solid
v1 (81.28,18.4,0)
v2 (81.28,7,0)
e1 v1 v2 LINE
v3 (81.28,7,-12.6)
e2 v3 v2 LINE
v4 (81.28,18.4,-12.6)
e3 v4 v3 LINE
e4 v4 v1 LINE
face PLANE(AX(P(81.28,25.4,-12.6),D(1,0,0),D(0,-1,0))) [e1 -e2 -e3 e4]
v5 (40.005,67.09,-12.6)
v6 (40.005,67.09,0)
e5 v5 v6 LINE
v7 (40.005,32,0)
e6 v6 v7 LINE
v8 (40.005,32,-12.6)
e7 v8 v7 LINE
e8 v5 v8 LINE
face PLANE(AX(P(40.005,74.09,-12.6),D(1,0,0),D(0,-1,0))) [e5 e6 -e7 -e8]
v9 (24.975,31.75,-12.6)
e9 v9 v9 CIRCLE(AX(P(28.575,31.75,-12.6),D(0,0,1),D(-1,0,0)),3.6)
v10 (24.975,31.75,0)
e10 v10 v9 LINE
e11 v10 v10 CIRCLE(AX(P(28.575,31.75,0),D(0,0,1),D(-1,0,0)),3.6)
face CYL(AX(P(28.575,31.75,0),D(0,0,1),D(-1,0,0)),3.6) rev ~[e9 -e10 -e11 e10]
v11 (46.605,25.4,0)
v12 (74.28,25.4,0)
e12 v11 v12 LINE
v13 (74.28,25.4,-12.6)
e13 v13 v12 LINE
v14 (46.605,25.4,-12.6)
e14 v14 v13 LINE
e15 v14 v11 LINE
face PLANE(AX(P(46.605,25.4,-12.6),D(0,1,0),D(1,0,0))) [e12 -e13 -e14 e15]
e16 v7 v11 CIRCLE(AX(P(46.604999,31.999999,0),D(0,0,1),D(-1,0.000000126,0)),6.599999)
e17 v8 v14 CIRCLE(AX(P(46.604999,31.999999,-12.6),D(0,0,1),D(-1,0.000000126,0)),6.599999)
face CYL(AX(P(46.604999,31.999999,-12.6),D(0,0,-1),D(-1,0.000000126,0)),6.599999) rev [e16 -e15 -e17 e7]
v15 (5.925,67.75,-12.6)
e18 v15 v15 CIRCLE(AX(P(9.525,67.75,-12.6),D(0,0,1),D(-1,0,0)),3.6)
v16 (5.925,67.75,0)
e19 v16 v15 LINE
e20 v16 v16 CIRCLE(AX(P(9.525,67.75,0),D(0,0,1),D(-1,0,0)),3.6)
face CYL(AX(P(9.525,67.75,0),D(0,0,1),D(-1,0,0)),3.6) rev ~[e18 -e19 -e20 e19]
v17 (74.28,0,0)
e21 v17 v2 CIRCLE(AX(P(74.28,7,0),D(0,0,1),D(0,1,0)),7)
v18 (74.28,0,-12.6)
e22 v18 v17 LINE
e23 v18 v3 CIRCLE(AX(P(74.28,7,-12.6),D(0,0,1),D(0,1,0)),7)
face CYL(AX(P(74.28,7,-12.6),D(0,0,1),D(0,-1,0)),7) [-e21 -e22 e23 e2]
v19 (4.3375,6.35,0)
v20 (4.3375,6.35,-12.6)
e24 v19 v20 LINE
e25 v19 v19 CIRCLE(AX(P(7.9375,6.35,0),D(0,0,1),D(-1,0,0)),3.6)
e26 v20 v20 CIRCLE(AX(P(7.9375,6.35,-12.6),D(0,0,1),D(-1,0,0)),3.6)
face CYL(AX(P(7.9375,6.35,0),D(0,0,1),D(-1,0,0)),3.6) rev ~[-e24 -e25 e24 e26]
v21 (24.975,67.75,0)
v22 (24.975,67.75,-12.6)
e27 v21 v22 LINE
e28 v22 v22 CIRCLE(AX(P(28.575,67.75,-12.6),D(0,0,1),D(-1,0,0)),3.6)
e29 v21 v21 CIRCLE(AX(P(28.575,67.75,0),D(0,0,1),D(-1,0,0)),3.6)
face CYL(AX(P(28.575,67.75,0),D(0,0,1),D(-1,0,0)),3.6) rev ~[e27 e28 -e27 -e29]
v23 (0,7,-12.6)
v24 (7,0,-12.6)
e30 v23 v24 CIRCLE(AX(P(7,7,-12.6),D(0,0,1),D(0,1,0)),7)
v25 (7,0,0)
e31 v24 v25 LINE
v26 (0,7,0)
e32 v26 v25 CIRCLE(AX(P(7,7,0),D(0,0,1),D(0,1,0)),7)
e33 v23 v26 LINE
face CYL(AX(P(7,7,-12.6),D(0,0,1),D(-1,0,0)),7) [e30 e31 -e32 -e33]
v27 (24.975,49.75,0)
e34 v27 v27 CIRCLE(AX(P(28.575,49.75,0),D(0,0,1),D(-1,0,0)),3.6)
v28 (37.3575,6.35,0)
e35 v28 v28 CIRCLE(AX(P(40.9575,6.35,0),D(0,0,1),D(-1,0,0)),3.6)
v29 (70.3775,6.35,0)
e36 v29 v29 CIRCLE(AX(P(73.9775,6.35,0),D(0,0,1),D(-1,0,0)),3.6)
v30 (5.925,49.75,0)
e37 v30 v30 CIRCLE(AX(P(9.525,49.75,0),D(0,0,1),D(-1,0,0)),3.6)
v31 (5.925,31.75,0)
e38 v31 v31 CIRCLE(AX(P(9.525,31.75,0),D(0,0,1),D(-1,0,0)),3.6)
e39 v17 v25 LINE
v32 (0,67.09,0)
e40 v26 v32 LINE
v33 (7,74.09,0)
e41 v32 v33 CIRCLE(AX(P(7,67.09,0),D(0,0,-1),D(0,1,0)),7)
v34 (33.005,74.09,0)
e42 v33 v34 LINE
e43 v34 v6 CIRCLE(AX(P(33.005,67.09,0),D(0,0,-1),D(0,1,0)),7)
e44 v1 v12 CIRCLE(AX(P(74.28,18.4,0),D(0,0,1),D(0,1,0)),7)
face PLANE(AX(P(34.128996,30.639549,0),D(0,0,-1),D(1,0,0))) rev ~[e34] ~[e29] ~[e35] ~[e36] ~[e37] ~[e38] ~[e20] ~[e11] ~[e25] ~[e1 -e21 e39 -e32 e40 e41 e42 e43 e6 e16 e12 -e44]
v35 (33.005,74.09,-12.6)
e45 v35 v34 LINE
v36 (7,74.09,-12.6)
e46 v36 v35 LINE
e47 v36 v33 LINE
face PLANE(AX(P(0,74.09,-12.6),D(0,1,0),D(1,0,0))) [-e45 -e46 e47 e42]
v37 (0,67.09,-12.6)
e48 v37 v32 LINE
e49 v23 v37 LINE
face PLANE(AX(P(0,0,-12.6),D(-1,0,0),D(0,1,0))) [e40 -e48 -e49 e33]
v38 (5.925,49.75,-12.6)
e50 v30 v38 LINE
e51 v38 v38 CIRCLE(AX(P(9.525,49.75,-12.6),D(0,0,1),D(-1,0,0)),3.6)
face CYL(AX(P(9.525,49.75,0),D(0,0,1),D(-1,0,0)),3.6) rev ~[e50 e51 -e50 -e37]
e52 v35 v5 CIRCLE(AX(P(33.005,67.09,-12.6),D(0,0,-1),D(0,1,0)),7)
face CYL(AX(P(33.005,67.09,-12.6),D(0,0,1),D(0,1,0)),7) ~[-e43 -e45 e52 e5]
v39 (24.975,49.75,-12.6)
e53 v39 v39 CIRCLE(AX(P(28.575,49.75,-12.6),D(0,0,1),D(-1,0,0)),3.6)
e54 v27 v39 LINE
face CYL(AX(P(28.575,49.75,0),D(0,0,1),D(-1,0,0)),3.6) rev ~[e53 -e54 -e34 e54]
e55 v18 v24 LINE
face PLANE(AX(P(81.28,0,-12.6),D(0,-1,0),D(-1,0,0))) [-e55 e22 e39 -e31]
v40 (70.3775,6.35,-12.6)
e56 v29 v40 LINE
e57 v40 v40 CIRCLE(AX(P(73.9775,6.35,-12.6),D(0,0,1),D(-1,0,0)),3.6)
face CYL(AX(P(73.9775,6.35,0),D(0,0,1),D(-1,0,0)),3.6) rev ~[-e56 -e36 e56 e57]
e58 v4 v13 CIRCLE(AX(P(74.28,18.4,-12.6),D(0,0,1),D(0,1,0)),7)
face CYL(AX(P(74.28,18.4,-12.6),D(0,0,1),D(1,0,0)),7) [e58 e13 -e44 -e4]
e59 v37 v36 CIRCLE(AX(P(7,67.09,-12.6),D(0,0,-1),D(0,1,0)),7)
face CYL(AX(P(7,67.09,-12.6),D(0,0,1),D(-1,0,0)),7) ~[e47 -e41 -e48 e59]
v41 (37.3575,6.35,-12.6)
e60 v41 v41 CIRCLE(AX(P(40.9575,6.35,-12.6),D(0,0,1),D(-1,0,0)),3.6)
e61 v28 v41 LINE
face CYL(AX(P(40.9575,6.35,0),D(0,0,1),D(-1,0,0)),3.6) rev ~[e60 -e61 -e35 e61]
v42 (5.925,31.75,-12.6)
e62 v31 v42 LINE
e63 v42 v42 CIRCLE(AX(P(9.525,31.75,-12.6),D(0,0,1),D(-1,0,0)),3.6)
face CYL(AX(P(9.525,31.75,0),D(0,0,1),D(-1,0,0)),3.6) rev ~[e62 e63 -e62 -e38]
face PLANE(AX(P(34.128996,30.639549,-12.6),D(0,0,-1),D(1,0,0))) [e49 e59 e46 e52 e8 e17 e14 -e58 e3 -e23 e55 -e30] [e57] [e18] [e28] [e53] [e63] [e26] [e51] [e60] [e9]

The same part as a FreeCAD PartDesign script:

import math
import FreeCAD as App
import Part
import Sketcher

V = App.Vector
Q = App.Units.Quantity


def edges_at(feature, points):
    """Names of the edges that pass closest to the given points."""
    edges = feature.Shape.Edges
    near = lambda p: min(range(len(edges)), key=lambda i: edges[i].distToShape(Part.Vertex(*p))[0])
    return sorted({f"Edge{near(p) + 1}" for p in points})

doc = App.newDocument("Part")
params = doc.addObject("Spreadsheet::Sheet", "Params")
for row, (alias, value) in enumerate([
    ("sketch1_radius", "6.599999 mm"),
    ("sketch1_height", "25.4 mm"),
    ("sketch1_width", "81.28 mm"),
    ("sketch1_height2", "74.09 mm"),
    ("pad1_length", "12.6 mm"),
    ("sketch2_diameter", "7.2 mm"),
    ("fillet_radius", "7 mm"),
], start=1):
    params.set(f"A{row}", alias)
    params.set(f"B{row}", "=" + value)
    params.setAlias(f"B{row}", alias)

body = doc.addObject("PartDesign::Body", "Body")

sketch1 = body.newObject("Sketcher::SketchObject", "Sketch")
sketch1.AttachmentSupport = (doc.getObject("XY_Plane"), [""])
sketch1.MapMode = "FlatFace"
sketch1.addGeometry(Part.LineSegment(V(0, -74, 0), V(0, 0, 0)), False)
sketch1.addGeometry(Part.LineSegment(V(0, 0, 0), V(-81, 0, 0)), False)
sketch1.addGeometry(Part.LineSegment(V(-81, 0, 0), V(-81, -25, 0)), False)
sketch1.addGeometry(Part.LineSegment(V(-81, -25, 0), V(-47, -25, 0)), False)
sketch1.addGeometry(Part.ArcOfCircle(Part.Circle(V(-47, -32, 0), V(0, 0, 1), 7), math.radians(0), math.radians(90)), False)
sketch1.addGeometry(Part.LineSegment(V(-40, -32, 0), V(-40, -74, 0)), False)
sketch1.addGeometry(Part.LineSegment(V(-40, -74, 0), V(0, -74, 0)), False)
sketch1.addConstraint(Sketcher.Constraint("Coincident", 0, 2, 1, 1))
sketch1.addConstraint(Sketcher.Constraint("Coincident", 1, 2, 2, 1))
sketch1.addConstraint(Sketcher.Constraint("Coincident", 2, 2, 3, 1))
sketch1.addConstraint(Sketcher.Constraint("Tangent", 3, 2, 4, 2))
sketch1.addConstraint(Sketcher.Constraint("Tangent", 4, 1, 5, 1))
sketch1.addConstraint(Sketcher.Constraint("Coincident", 5, 2, 6, 1))
sketch1.addConstraint(Sketcher.Constraint("Coincident", 6, 2, 0, 1))
sketch1.addConstraint(Sketcher.Constraint("Vertical", 0))
sketch1.addConstraint(Sketcher.Constraint("Horizontal", 1))
sketch1.addConstraint(Sketcher.Constraint("Vertical", 2))
sketch1.addConstraint(Sketcher.Constraint("Horizontal", 3))
sketch1.addConstraint(Sketcher.Constraint("Vertical", 5))
sketch1.addConstraint(Sketcher.Constraint("Horizontal", 6))
sketch1.addConstraint(Sketcher.Constraint("Coincident", 0, 2, -1, 1))
sketch1.addConstraint(Sketcher.Constraint("Radius", 4, Q("6.599999 mm")))
sketch1.addConstraint(Sketcher.Constraint("DistanceY", 2, 2, 2, 1, Q("25.4 mm")))
sketch1.addConstraint(Sketcher.Constraint("DistanceX", 1, 2, 1, 1, Q("81.28 mm")))
sketch1.addConstraint(Sketcher.Constraint("DistanceY", 0, 1, 0, 2, Q("74.09 mm")))
sketch1.addConstraint(Sketcher.Constraint("DistanceX", 3, 1, 3, 2, Q("34.675 mm")))
sketch1.setExpression("Constraints[14]", "Params.sketch1_radius")
sketch1.setExpression("Constraints[15]", "Params.sketch1_height")
sketch1.setExpression("Constraints[16]", "Params.sketch1_width")
sketch1.setExpression("Constraints[17]", "Params.sketch1_height2")
pad1 = body.newObject("PartDesign::Pad", "Pad")
pad1.Profile = sketch1
pad1.setExpression("Length", "Params.pad1_length")

sketch2 = body.newObject("Sketcher::SketchObject", "Sketch001")
sketch2.AttachmentSupport = (doc.getObject("XY_Plane"), [""])
sketch2.MapMode = "FlatFace"
sketch2.AttachmentOffset = App.Placement(V(0, 0, 12.6), App.Rotation())
sketch2.addGeometry(Part.Circle(V(-74, -6.3, 0), V(0, 0, 1), 3.6), False)
sketch2.addGeometry(Part.Circle(V(-7.9, -6.3, 0), V(0, 0, 1), 3.6), False)
sketch2.addGeometry(Part.Circle(V(-41, -6.3, 0), V(0, 0, 1), 3.6), False)
sketch2.addGeometry(Part.Circle(V(-28.6, -31.8, 0), V(0, 0, 1), 3.6), False)
sketch2.addGeometry(Part.Circle(V(-9.5, -31.8, 0), V(0, 0, 1), 3.6), False)
sketch2.addGeometry(Part.Circle(V(-28.6, -49.8, 0), V(0, 0, 1), 3.6), False)
sketch2.addGeometry(Part.Circle(V(-9.5, -49.8, 0), V(0, 0, 1), 3.6), False)
sketch2.addGeometry(Part.Circle(V(-28.6, -67.8, 0), V(0, 0, 1), 3.6), False)
sketch2.addGeometry(Part.Circle(V(-9.5, -67.8, 0), V(0, 0, 1), 3.6), False)
sketch2.addConstraint(Sketcher.Constraint("Equal", 0, 1))
sketch2.addConstraint(Sketcher.Constraint("Equal", 1, 2))
sketch2.addConstraint(Sketcher.Constraint("Equal", 2, 3))
sketch2.addConstraint(Sketcher.Constraint("Equal", 3, 4))
sketch2.addConstraint(Sketcher.Constraint("Equal", 4, 5))
sketch2.addConstraint(Sketcher.Constraint("Equal", 5, 6))
sketch2.addConstraint(Sketcher.Constraint("Equal", 6, 7))
sketch2.addConstraint(Sketcher.Constraint("Equal", 7, 8))
sketch2.addConstraint(Sketcher.Constraint("Horizontal", 0, 3, 1, 3))
sketch2.addConstraint(Sketcher.Constraint("Horizontal", 1, 3, 2, 3))
sketch2.addConstraint(Sketcher.Constraint("Horizontal", 3, 3, 4, 3))
sketch2.addConstraint(Sketcher.Constraint("Horizontal", 5, 3, 6, 3))
sketch2.addConstraint(Sketcher.Constraint("Horizontal", 7, 3, 8, 3))
sketch2.addConstraint(Sketcher.Constraint("Vertical", 3, 3, 5, 3))
sketch2.addConstraint(Sketcher.Constraint("Vertical", 4, 3, 6, 3))
sketch2.addConstraint(Sketcher.Constraint("Vertical", 5, 3, 7, 3))
sketch2.addConstraint(Sketcher.Constraint("Vertical", 6, 3, 8, 3))
sketch2.addConstraint(Sketcher.Constraint("Diameter", 0, Q("7.2 mm")))
sketch2.addConstraint(Sketcher.Constraint("DistanceY", 5, 3, 3, 3, Q("18 mm")))
sketch2.addConstraint(Sketcher.Constraint("DistanceY", 7, 3, 5, 3, Q("18 mm")))
sketch2.addConstraint(Sketcher.Constraint("DistanceY", 3, 3, 2, 3, Q("25.4 mm")))
sketch2.addConstraint(Sketcher.Constraint("DistanceY", 0, 3, -1, 1, Q("6.35 mm")))
sketch2.addConstraint(Sketcher.Constraint("DistanceX", 0, 3, 1, 3, Q("66.04 mm")))
sketch2.addConstraint(Sketcher.Constraint("DistanceX", 0, 3, 2, 3, Q("33.02 mm")))
sketch2.addConstraint(Sketcher.Constraint("DistanceX", 3, 3, 4, 3, Q("19.05 mm")))
sketch2.addConstraint(Sketcher.Constraint("DistanceX", 3, 3, -1, 1, Q("28.575 mm")))
sketch2.addConstraint(Sketcher.Constraint("DistanceX", 0, 3, -1, 1, Q("73.9775 mm")))
sketch2.setExpression("Constraints[17]", "Params.sketch2_diameter")
pocket1 = body.newObject("PartDesign::Pocket", "Pocket")
pocket1.Profile = sketch2
pocket1.Type = "ThroughAll"
doc.recompute()

fillet = body.newObject("PartDesign::Fillet", "Fillet")
fillet.Base = (pocket1, edges_at(pocket1, [
    (0, 0, 6.3),
    (-81.28, 0, 6.3),
    (-81.28, -25.4, 6.3),
    (-40.005, -74.09, 6.3),
    (0, -74.09, 6.3),
]))
fillet.setExpression("Radius", "Params.fillet_radius")
body2 = doc.addObject("PartDesign::Body", "Body001")
doc.recompute()

body.Placement = App.Placement(V(0, 0, -12.6), App.Rotation(V(0, 0, 1), 180))
boolean = body2.newObject("PartDesign::Boolean", "Boolean")
boolean.Type = "Fuse"
boolean.addObjects([body])

doc.recompute()
